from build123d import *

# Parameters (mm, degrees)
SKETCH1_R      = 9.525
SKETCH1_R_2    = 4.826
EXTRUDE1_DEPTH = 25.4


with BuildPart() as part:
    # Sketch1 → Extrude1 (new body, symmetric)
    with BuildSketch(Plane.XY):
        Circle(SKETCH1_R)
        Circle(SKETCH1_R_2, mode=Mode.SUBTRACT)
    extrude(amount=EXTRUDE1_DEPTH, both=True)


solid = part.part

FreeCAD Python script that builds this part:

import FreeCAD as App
import Part
import Sketcher

V = App.Vector
Q = App.Units.Quantity

doc = App.newDocument("Part")
body = doc.addObject("PartDesign::Body", "Body")

# Sketch on XY plane
sketch1 = body.newObject("Sketcher::SketchObject", "Sketch")
sketch1.AttachmentSupport = (doc.getObject("XY_Plane"), [""])
sketch1.MapMode = "FlatFace"
sketch1.addGeometry([
    Part.Circle(V(0, 0, 0), V(0, 0, 1), 9.5),
    Part.Circle(V(0, 0, 0), V(0, 0, 1), 4.8),
], False)
sketch1.addConstraint([
    Sketcher.Constraint("Coincident", 0, 3, -1, 1),
    Sketcher.Constraint("Coincident", 1, 3, -1, 1),
    Sketcher.Constraint("Diameter", 0, Q("0.75 in")),
    Sketcher.Constraint("Diameter", 1, Q("0.38 in")),
])
pad1 = body.newObject("PartDesign::Pad", "Pad")
pad1.Profile = sketch1
pad1.Length = Q("2 in")
pad1.Midplane = True

doc.recompute()
